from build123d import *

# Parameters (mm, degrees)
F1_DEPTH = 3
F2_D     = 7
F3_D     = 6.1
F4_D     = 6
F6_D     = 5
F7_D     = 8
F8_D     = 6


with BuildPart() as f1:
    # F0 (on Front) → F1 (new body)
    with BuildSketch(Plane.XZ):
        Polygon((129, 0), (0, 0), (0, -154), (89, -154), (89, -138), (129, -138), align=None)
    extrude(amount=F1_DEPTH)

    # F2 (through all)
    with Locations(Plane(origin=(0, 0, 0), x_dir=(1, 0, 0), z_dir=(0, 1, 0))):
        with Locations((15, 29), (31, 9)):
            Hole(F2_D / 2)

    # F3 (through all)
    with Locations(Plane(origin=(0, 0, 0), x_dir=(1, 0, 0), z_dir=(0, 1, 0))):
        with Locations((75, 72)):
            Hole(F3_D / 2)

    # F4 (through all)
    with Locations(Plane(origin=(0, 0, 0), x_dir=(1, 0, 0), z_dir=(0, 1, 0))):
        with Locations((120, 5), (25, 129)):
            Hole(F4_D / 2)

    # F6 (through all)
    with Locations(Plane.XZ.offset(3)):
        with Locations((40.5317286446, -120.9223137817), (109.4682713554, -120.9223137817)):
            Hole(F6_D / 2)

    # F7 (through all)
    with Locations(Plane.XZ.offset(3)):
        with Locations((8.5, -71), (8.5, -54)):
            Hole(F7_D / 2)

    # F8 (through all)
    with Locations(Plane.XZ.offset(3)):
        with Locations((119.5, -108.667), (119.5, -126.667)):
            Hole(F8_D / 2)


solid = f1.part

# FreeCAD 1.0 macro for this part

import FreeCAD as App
import Part
import Sketcher

V = App.Vector
Q = App.Units.Quantity

doc = App.newDocument("Part")
params = doc.addObject("Spreadsheet::Sheet", "Params")
for row, (alias, value) in enumerate([
    ("sketch1_width", "129 mm"),
    ("sketch1_width2", "89 mm"),
    ("sketch1_height", "154 mm"),
    ("sketch1_height2", "16 mm"),
    ("pad1_length", "3 mm"),
    ("sketch2_diameter", "7 mm"),
    ("hole_diameter", "7 mm"),
    ("sketch3_diameter", "6.1 mm"),
    ("hole2_diameter", "6.1 mm"),
    ("sketch4_diameter", "6 mm"),
    ("hole3_diameter", "6 mm"),
    ("sketch5_diameter", "5 mm"),
    ("hole4_diameter", "5 mm"),
    ("sketch6_diameter", "8 mm"),
    ("hole5_diameter", "8 mm"),
    ("sketch7_diameter", "6 mm"),
    ("hole6_diameter", "6 mm"),
], start=1):
    params.set(f"A{row}", alias)
    params.set(f"B{row}", "=" + value)
    params.setAlias(f"B{row}", alias)

body = doc.addObject("PartDesign::Body", "Body")

# Sketch on XZ plane
sketch1 = doc.addObject("Sketcher::SketchObject", "Sketch")
body.addObject(sketch1)
sketch1.AttachmentSupport = (doc.XZ_Plane, [""])
sketch1.MapMode = "FlatFace"
sketch1.addGeometry([
    Part.LineSegment(V(129, 0, 0), V(0, 0, 0)),  # 0
    Part.LineSegment(V(0, 0, 0), V(0, -154, 0)),  # 1
    Part.LineSegment(V(0, -154, 0), V(89, -154, 0)),  # 2
    Part.LineSegment(V(89, -154, 0), V(89, -138, 0)),  # 3
    Part.LineSegment(V(89, -138, 0), V(129, -138, 0)),  # 4
    Part.LineSegment(V(129, -138, 0), V(129, 0, 0)),  # 5
], False)
sketch1.addConstraint([
    Sketcher.Constraint("Coincident", 0, 2, 1, 1),
    Sketcher.Constraint("Coincident", 1, 2, 2, 1),
    Sketcher.Constraint("Coincident", 2, 2, 3, 1),
    Sketcher.Constraint("Coincident", 3, 2, 4, 1),
    Sketcher.Constraint("Coincident", 4, 2, 5, 1),
    Sketcher.Constraint("Coincident", 5, 2, 0, 1),
    Sketcher.Constraint("Horizontal", 0),
    Sketcher.Constraint("Vertical", 1),
    Sketcher.Constraint("Horizontal", 2),
    Sketcher.Constraint("Vertical", 3),
    Sketcher.Constraint("Horizontal", 4),
    Sketcher.Constraint("Vertical", 5),
    Sketcher.Constraint("Coincident", 0, 2, -1, 1),
    Sketcher.Constraint("DistanceX", 0, 2, 0, 1, Q("129 mm")),
    Sketcher.Constraint("DistanceX", 2, 1, 2, 2, Q("89 mm")),
    Sketcher.Constraint("DistanceY", 1, 2, 1, 1, Q("154 mm")),
    Sketcher.Constraint("DistanceY", 3, 1, 3, 2, Q("16 mm")),
])
sketch1.setExpression("Constraints[13]", "Params.sketch1_width")
sketch1.setExpression("Constraints[14]", "Params.sketch1_width2")
sketch1.setExpression("Constraints[15]", "Params.sketch1_height")
sketch1.setExpression("Constraints[16]", "Params.sketch1_height2")
pad1 = doc.addObject("PartDesign::Pad", "Pad")
body.addObject(pad1)
pad1.Profile = sketch1
pad1.setExpression("Length", "Params.pad1_length")

# Sketch on XZ plane
sketch2 = doc.addObject("Sketcher::SketchObject", "Sketch001")
body.addObject(sketch2)
sketch2.AttachmentSupport = (doc.XZ_Plane, [""])
sketch2.MapMode = "FlatFace"
sketch2.addGeometry([
    Part.Circle(V(15, -29, 0), V(0, 0, 1), 3.5),
    Part.Circle(V(31, -9, 0), V(0, 0, 1), 3.5),
], False)
sketch2.addConstraint([
    Sketcher.Constraint("Equal", 0, 1),
    Sketcher.Constraint("Diameter", 0, Q("7 mm")),
    Sketcher.Constraint("DistanceX", -1, 1, 0, 3, Q("15 mm")),
    Sketcher.Constraint("DistanceY", 0, 3, -1, 1, Q("29 mm")),
    Sketcher.Constraint("DistanceX", -1, 1, 1, 3, Q("31 mm")),
    Sketcher.Constraint("DistanceY", 1, 3, -1, 1, Q("9 mm")),
])
sketch2.setExpression("Constraints[1]", "Params.sketch2_diameter")
doc.recompute()
hole = doc.addObject("PartDesign::Hole", "Hole")
body.addObject(hole)
hole.Profile = sketch2
hole.ThreadType = "None"
hole.setExpression("Diameter", "Params.hole_diameter")
hole.DepthType = "ThroughAll"
hole.Reversed = True

# Sketch on XZ plane
sketch3 = doc.addObject("Sketcher::SketchObject", "Sketch002")
body.addObject(sketch3)
sketch3.AttachmentSupport = (doc.XZ_Plane, [""])
sketch3.MapMode = "FlatFace"
sketch3.addGeometry(Part.Circle(V(75, -72, 0), V(0, 0, 1), 3.05), False)
sketch3.addConstraint([
    Sketcher.Constraint("Diameter", 0, Q("6.1 mm")),
    Sketcher.Constraint("DistanceX", -1, 1, 0, 3, Q("75 mm")),
    Sketcher.Constraint("DistanceY", 0, 3, -1, 1, Q("72 mm")),
])
sketch3.setExpression("Constraints[0]", "Params.sketch3_diameter")
doc.recompute()
hole2 = doc.addObject("PartDesign::Hole", "Hole001")
body.addObject(hole2)
hole2.Profile = sketch3
hole2.ThreadType = "None"
hole2.setExpression("Diameter", "Params.hole2_diameter")
hole2.DepthType = "ThroughAll"
hole2.Reversed = True

# Sketch on XZ plane
sketch4 = doc.addObject("Sketcher::SketchObject", "Sketch003")
body.addObject(sketch4)
sketch4.AttachmentSupport = (doc.XZ_Plane, [""])
sketch4.MapMode = "FlatFace"
sketch4.addGeometry([
    Part.Circle(V(120, -5, 0), V(0, 0, 1), 3),
    Part.Circle(V(25, -129, 0), V(0, 0, 1), 3),
], False)
sketch4.addConstraint([
    Sketcher.Constraint("Equal", 0, 1),
    Sketcher.Constraint("Diameter", 0, Q("6 mm")),
    Sketcher.Constraint("DistanceX", -1, 1, 0, 3, Q("120 mm")),
    Sketcher.Constraint("DistanceY", 0, 3, -1, 1, Q("5 mm")),
    Sketcher.Constraint("DistanceX", -1, 1, 1, 3, Q("25 mm")),
    Sketcher.Constraint("DistanceY", 1, 3, -1, 1, Q("129 mm")),
])
sketch4.setExpression("Constraints[1]", "Params.sketch4_diameter")
doc.recompute()
hole3 = doc.addObject("PartDesign::Hole", "Hole002")
body.addObject(hole3)
hole3.Profile = sketch4
hole3.ThreadType = "None"
hole3.setExpression("Diameter", "Params.hole3_diameter")
hole3.DepthType = "ThroughAll"
hole3.Reversed = True

# Sketch on XZ plane
sketch5 = doc.addObject("Sketcher::SketchObject", "Sketch004")
body.addObject(sketch5)
sketch5.AttachmentSupport = (doc.XZ_Plane, [""])
sketch5.MapMode = "FlatFace"
sketch5.AttachmentOffset = App.Placement(V(0, 0, 3), App.Rotation())
sketch5.addGeometry([
    Part.Circle(V(40.531729, -120.922314, 0), V(0, 0, 1), 2.5),
    Part.Circle(V(109.468271, -120.922314, 0), V(0, 0, 1), 2.5),
], False)
sketch5.addConstraint([
    Sketcher.Constraint("Equal", 0, 1),
    Sketcher.Constraint("Horizontal", 0, 3, 1, 3),
    Sketcher.Constraint("Diameter", 0, Q("5 mm")),
    Sketcher.Constraint("DistanceX", -1, 1, 0, 3, Q("40.531729 mm")),
    Sketcher.Constraint("DistanceX", -1, 1, 1, 3, Q("109.468271 mm")),
    Sketcher.Constraint("DistanceY", 0, 3, -1, 1, Q("120.922314 mm")),
])
sketch5.setExpression("Constraints[2]", "Params.sketch5_diameter")
doc.recompute()
hole4 = doc.addObject("PartDesign::Hole", "Hole003")
body.addObject(hole4)
hole4.Profile = sketch5
hole4.ThreadType = "None"
hole4.setExpression("Diameter", "Params.hole4_diameter")
hole4.DepthType = "ThroughAll"

# Sketch on XZ plane
sketch6 = doc.addObject("Sketcher::SketchObject", "Sketch005")
body.addObject(sketch6)
sketch6.AttachmentSupport = (doc.XZ_Plane, [""])
sketch6.MapMode = "FlatFace"
sketch6.AttachmentOffset = App.Placement(V(0, 0, 3), App.Rotation())
sketch6.addGeometry([
    Part.Circle(V(8.5, -71, 0), V(0, 0, 1), 4),
    Part.Circle(V(8.5, -54, 0), V(0, 0, 1), 4),
], False)
sketch6.addConstraint([
    Sketcher.Constraint("Equal", 0, 1),
    Sketcher.Constraint("Vertical", 0, 3, 1, 3),
    Sketcher.Constraint("Diameter", 0, Q("8 mm")),
    Sketcher.Constraint("DistanceY", 0, 3, -1, 1, Q("71 mm")),
    Sketcher.Constraint("DistanceY", 1, 3, -1, 1, Q("54 mm")),
    Sketcher.Constraint("DistanceX", -1, 1, 0, 3, Q("8.5 mm")),
])
sketch6.setExpression("Constraints[2]", "Params.sketch6_diameter")
doc.recompute()
hole5 = doc.addObject("PartDesign::Hole", "Hole004")
body.addObject(hole5)
hole5.Profile = sketch6
hole5.ThreadType = "None"
hole5.setExpression("Diameter", "Params.hole5_diameter")
hole5.DepthType = "ThroughAll"

# Sketch on XZ plane
sketch7 = doc.addObject("Sketcher::SketchObject", "Sketch006")
body.addObject(sketch7)
sketch7.AttachmentSupport = (doc.XZ_Plane, [""])
sketch7.MapMode = "FlatFace"
sketch7.AttachmentOffset = App.Placement(V(0, 0, 3), App.Rotation())
sketch7.addGeometry([
    Part.Circle(V(119.5, -108.667, 0), V(0, 0, 1), 3),
    Part.Circle(V(119.5, -126.667, 0), V(0, 0, 1), 3),
], False)
sketch7.addConstraint([
    Sketcher.Constraint("Equal", 0, 1),
    Sketcher.Constraint("Vertical", 0, 3, 1, 3),
    Sketcher.Constraint("Diameter", 0, Q("6 mm")),
    Sketcher.Constraint("DistanceY", 1, 3, 0, 3, Q("18 mm")),
    Sketcher.Constraint("DistanceX", -1, 1, 0, 3, Q("119.5 mm")),
    Sketcher.Constraint("DistanceY", 0, 3, -1, 1, Q("108.667 mm")),
])
sketch7.setExpression("Constraints[2]", "Params.sketch7_diameter")
doc.recompute()
hole6 = doc.addObject("PartDesign::Hole", "Hole005")
body.addObject(hole6)
hole6.Profile = sketch7
hole6.ThreadType = "None"
hole6.setExpression("Diameter", "Params.hole6_diameter")
hole6.DepthType = "ThroughAll"

doc.recompute()
